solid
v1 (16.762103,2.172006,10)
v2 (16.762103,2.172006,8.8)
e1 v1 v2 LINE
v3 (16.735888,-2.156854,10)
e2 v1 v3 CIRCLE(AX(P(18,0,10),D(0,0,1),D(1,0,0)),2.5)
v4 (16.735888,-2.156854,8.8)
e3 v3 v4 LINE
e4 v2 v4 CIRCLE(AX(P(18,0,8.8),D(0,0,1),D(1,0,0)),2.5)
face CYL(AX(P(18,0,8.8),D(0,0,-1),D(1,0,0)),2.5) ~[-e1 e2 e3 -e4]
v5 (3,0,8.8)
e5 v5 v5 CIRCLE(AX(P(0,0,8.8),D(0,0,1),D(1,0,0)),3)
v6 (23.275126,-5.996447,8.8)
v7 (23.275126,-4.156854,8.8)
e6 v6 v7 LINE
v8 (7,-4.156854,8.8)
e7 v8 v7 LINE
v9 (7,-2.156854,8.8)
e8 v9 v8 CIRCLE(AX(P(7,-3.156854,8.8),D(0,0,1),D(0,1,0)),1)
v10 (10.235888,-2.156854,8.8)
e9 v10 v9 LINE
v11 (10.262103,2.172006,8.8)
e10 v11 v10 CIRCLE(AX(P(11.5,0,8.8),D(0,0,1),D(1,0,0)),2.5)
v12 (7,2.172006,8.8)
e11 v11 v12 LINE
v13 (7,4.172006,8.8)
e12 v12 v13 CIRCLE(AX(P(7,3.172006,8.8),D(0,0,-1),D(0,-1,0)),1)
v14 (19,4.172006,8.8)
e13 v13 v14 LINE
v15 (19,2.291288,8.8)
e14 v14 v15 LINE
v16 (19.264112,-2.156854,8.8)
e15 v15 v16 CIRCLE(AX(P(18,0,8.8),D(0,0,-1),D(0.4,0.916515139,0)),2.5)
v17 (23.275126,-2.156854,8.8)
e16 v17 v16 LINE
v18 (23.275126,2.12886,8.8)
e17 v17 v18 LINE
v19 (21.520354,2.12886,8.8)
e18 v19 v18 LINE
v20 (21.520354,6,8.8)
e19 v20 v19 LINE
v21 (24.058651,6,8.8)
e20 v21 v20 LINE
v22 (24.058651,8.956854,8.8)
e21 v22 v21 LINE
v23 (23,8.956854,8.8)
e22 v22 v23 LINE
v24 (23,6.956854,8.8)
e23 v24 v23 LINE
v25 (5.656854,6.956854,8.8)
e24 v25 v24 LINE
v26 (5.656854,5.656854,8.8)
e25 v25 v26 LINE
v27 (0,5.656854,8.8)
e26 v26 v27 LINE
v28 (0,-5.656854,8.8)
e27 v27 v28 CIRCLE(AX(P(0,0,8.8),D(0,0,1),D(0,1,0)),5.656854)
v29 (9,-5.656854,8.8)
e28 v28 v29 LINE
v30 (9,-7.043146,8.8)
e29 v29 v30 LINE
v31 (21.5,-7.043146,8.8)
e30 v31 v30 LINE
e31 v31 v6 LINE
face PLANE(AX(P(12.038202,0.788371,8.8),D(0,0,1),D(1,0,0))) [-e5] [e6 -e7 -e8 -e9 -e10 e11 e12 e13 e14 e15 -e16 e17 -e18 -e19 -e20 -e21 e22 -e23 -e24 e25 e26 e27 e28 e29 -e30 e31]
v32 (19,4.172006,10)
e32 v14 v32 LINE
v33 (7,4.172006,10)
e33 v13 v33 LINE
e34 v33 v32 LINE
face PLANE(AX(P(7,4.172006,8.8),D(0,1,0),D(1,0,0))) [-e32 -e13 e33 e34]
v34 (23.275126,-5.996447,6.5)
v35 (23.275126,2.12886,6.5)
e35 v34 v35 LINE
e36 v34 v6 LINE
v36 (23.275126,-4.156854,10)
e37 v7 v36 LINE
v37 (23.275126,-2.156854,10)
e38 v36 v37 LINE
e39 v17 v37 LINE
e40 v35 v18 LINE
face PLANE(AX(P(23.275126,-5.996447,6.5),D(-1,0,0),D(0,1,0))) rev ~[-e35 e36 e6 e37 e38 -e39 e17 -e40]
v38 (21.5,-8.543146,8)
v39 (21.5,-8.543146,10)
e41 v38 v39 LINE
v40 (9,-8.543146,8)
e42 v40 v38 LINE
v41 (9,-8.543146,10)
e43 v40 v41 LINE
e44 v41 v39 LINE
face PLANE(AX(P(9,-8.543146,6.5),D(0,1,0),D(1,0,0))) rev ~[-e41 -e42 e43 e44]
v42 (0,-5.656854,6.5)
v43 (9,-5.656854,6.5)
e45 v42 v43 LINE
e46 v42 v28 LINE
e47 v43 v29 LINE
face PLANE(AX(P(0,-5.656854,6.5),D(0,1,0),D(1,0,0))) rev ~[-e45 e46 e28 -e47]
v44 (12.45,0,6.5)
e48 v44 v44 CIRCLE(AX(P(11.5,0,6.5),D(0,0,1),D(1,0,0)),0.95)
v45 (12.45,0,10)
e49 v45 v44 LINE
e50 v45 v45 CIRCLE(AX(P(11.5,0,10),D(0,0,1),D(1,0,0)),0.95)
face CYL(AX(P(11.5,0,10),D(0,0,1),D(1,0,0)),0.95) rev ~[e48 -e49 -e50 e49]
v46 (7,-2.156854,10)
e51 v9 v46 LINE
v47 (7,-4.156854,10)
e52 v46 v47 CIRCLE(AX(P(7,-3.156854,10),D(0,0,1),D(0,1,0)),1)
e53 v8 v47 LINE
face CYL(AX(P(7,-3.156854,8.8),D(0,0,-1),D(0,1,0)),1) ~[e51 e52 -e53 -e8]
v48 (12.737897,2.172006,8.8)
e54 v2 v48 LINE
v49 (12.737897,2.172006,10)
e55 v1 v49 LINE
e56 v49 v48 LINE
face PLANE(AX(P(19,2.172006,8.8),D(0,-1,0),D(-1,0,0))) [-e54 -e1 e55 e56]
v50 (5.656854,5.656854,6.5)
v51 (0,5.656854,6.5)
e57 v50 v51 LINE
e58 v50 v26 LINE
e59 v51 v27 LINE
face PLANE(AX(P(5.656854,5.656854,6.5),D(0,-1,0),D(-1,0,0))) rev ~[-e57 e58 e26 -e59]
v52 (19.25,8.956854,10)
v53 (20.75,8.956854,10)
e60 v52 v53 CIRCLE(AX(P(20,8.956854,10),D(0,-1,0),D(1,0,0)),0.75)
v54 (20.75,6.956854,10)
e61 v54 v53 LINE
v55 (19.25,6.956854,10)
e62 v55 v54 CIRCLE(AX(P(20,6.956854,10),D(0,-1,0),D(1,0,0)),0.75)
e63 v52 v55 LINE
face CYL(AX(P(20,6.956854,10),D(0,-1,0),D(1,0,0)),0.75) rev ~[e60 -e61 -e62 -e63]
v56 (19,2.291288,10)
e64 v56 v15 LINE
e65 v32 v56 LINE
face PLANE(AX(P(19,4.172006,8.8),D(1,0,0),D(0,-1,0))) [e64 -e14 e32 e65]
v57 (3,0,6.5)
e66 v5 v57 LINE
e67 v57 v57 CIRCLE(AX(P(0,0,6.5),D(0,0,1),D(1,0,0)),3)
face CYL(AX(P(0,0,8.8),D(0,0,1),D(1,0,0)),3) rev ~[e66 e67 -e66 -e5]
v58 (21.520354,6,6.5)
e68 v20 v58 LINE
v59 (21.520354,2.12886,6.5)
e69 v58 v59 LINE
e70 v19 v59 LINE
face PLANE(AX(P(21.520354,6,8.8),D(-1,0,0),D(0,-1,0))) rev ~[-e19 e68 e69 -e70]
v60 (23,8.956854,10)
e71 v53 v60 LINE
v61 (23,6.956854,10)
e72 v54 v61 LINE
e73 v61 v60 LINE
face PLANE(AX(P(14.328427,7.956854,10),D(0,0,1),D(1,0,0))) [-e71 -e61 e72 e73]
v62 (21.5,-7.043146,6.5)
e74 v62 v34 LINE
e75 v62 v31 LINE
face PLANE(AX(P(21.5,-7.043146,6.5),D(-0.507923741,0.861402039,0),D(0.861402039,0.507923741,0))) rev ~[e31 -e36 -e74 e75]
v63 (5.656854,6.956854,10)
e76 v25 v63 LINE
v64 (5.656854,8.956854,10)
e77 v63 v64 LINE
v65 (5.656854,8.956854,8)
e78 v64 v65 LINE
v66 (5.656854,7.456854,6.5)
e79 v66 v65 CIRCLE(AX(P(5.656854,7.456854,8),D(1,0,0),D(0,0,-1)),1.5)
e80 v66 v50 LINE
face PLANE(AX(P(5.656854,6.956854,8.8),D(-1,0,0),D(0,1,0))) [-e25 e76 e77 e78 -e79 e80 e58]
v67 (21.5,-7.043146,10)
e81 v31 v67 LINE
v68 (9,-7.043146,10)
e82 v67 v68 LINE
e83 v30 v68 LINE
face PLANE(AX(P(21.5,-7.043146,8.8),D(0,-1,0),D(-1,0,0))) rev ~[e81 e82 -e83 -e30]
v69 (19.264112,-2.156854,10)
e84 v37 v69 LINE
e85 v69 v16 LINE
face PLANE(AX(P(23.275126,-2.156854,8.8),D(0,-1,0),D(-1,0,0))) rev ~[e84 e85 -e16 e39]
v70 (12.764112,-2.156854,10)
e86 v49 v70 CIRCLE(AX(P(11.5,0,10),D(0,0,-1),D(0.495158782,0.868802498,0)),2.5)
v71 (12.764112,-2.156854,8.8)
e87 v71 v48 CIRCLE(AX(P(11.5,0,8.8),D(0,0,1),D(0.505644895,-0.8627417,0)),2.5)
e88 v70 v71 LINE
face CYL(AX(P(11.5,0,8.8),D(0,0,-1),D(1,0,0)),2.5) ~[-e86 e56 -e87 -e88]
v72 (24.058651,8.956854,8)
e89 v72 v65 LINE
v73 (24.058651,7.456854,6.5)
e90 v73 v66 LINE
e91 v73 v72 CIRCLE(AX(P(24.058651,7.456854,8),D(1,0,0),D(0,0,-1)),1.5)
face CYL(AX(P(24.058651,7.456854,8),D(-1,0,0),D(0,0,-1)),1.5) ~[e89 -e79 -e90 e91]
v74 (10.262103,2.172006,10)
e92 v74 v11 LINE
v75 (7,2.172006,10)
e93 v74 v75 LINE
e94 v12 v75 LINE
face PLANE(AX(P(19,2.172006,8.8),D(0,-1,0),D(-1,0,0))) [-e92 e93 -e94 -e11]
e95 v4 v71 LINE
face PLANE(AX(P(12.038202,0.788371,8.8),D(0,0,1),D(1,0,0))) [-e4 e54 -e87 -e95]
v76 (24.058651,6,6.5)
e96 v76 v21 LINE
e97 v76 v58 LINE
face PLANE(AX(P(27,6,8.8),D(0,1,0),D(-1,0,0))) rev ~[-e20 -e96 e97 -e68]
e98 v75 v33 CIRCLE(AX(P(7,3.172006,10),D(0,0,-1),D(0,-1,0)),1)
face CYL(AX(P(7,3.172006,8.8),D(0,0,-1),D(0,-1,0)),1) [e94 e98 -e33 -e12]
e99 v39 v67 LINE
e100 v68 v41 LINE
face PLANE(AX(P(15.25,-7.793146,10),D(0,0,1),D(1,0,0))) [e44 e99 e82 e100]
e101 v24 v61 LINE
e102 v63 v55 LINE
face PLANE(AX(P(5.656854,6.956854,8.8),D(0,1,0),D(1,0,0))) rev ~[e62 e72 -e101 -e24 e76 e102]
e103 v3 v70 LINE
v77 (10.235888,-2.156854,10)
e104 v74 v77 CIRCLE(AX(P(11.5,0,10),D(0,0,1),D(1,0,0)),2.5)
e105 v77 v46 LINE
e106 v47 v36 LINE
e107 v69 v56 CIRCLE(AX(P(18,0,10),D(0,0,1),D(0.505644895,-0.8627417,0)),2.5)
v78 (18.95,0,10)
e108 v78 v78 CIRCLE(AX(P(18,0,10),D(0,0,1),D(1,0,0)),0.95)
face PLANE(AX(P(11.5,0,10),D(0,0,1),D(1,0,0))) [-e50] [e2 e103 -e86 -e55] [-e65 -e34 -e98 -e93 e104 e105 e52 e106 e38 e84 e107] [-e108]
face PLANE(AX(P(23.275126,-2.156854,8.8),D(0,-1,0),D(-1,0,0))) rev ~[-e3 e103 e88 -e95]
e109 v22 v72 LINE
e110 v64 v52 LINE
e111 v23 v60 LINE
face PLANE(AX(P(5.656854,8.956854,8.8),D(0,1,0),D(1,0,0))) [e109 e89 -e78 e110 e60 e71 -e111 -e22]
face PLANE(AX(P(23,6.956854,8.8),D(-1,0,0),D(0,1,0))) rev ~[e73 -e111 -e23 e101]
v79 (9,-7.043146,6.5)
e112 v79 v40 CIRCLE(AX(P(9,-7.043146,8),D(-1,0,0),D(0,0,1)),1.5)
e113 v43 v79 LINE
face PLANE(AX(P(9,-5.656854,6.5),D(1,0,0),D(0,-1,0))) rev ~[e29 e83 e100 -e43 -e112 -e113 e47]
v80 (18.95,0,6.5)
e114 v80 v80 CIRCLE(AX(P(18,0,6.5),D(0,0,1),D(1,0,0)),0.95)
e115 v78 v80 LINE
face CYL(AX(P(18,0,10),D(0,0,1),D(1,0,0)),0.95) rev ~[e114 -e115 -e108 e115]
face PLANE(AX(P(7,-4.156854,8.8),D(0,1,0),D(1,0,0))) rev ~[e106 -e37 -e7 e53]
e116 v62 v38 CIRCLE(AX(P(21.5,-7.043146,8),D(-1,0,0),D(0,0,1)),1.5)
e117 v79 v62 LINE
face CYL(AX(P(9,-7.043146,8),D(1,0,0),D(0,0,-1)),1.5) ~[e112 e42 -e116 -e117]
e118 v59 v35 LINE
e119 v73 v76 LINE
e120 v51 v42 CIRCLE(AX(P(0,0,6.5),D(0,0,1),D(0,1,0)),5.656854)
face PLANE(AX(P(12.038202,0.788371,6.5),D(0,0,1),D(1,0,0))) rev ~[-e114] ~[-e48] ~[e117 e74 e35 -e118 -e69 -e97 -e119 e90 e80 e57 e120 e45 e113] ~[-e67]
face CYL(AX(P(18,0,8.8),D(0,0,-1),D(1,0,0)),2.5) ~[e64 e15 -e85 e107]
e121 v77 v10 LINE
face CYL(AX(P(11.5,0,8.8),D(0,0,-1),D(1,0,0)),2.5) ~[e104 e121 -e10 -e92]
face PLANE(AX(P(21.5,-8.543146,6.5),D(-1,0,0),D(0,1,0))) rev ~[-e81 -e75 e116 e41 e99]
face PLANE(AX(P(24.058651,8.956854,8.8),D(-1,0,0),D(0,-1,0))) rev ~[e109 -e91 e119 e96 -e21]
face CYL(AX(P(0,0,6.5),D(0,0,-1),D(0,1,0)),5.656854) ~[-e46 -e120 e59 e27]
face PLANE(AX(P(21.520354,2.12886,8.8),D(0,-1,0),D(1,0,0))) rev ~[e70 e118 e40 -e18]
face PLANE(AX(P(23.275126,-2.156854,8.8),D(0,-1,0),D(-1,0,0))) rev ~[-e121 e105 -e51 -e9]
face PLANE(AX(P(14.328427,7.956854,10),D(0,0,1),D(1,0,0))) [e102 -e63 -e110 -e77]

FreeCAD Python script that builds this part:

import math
import FreeCAD as App
import Part
import Sketcher


def edges_at(feature, points):
    """Names of the edges that pass closest to the given points."""
    edges = feature.Shape.Edges
    near = lambda p: min(range(len(edges)), key=lambda i: edges[i].distToShape(Part.Vertex(*p))[0])
    return sorted({f"Edge{near(p) + 1}" for p in points})


def add_polygon(sketch, points):
    """Adds a closed chain of lines whose ends are joined by coincident constraints."""
    first, n = sketch.GeometryCount, len(points)
    for a, b in zip(points, points[1:] + points[:1]):
        sketch.addGeometry(Part.LineSegment(App.Vector(*a, 0), App.Vector(*b, 0)), False)
    for i in range(n):
        sketch.addConstraint(Sketcher.Constraint("Coincident", first + i, 2, first + (i + 1) % n, 1))

doc = App.newDocument("Part")
body = doc.addObject("PartDesign::Body", "Body")

# Sketch on XY plane
sketch1 = doc.addObject("Sketcher::SketchObject", "Sketch")
body.addObject(sketch1)
sketch1.AttachmentSupport = (doc.XY_Plane, [""])
sketch1.MapMode = "FlatFace"
sketch1.addGeometry([
    Part.LineSegment(App.Vector(8, 0, 0), App.Vector(9, -2.543146, 0)),  # 0
    Part.LineSegment(App.Vector(9, -2.543146, 0), App.Vector(9, -7.043146, 0)),  # 1
    Part.LineSegment(App.Vector(9, -7.043146, 0), App.Vector(21.5, -7.043146, 0)),  # 2
    Part.LineSegment(App.Vector(21.5, -7.043146, 0), App.Vector(25.050253, -4.949747, 0)),  # 3
    Part.ArcOfCircle(Part.Circle(App.Vector(30, 0, 0), App.Vector(0, 0, 1), 7), math.radians(-135), math.radians(90)),  # 4
    Part.LineSegment(App.Vector(30, 7, 0), App.Vector(27, 7.456854, 0)),  # 5
    Part.LineSegment(App.Vector(27, 7.456854, 0), App.Vector(5.656854, 7.456854, 0)),  # 6
    Part.LineSegment(App.Vector(5.656854, 7.456854, 0), App.Vector(5.656854, 5.656854, 0)),  # 7
    Part.ArcOfCircle(Part.Circle(App.Vector(0, 0, 0), App.Vector(0, 0, 1), 8), math.radians(0), math.radians(45)),  # 8
], False)
sketch1.addConstraint([
    Sketcher.Constraint("Coincident", 0, 2, 1, 1),
    Sketcher.Constraint("Coincident", 1, 2, 2, 1),
    Sketcher.Constraint("Coincident", 2, 2, 3, 1),
    Sketcher.Constraint("Coincident", 3, 2, 4, 1),
    Sketcher.Constraint("Coincident", 4, 2, 5, 1),
    Sketcher.Constraint("Coincident", 5, 2, 6, 1),
    Sketcher.Constraint("Coincident", 6, 2, 7, 1),
    Sketcher.Constraint("Coincident", 7, 2, 8, 2),
    Sketcher.Constraint("Coincident", 8, 1, 0, 1),
    Sketcher.Constraint("Vertical", 1),
    Sketcher.Constraint("Horizontal", 2),
    Sketcher.Constraint("Horizontal", 6),
    Sketcher.Constraint("Vertical", 7),
    Sketcher.Constraint("Coincident", 8, 3, -1, 1),
    Sketcher.Constraint("PointOnObject", 4, 3, -1),
    Sketcher.Constraint("PointOnObject", 8, 1, -1),
    Sketcher.Constraint("Radius", 4, 7.0),
    Sketcher.Constraint("Radius", 8, 8.0),
    Sketcher.Constraint("DistanceX", 2, 1, 2, 2, 12.5),
    Sketcher.Constraint("DistanceY", 1, 2, 1, 1, 4.5),
    Sketcher.Constraint("DistanceY", 7, 2, 7, 1, 1.8),
    Sketcher.Constraint("DistanceX", -1, 1, 4, 3, 30.0),
    Sketcher.Constraint("DistanceX", -1, 1, 0, 2, 9.0),
    Sketcher.Constraint("DistanceX", -1, 1, 4, 2, 30.0),
    Sketcher.Constraint("DistanceX", -1, 1, 5, 2, 27.0),
    Sketcher.Constraint("DistanceY", 0, 2, 5, 2, 10.0),
    Sketcher.Constraint("DistanceY", 2, 2, 3, 2, 2.093398),
    Sketcher.Constraint("Distance", 0, 2.732689),
])
pad1 = doc.addObject("PartDesign::Pad", "Pad")
body.addObject(pad1)
pad1.Profile = sketch1
pad1.Length = 2

# Sketch on XY plane
sketch2 = doc.addObject("Sketcher::SketchObject", "Sketch001")
body.addObject(sketch2)
sketch2.AttachmentSupport = (doc.XY_Plane, [""])
sketch2.MapMode = "FlatFace"
sketch2.AttachmentOffset = App.Placement(App.Vector(0, 0, 2), App.Rotation())
sketch2.addGeometry([
    Part.LineSegment(App.Vector(27, 7.456854, 0), App.Vector(5.656854, 7.456854, 0)),  # 0
    Part.LineSegment(App.Vector(5.656854, 7.456854, 0), App.Vector(5.656854, 5.656854, 0)),  # 1
    Part.ArcOfCircle(Part.Circle(App.Vector(0, 0, 0), App.Vector(0, 0, 1), 8), math.radians(0), math.radians(45)),  # 2
    Part.LineSegment(App.Vector(8, 0, 0), App.Vector(9, -2.543146, 0)),  # 3
    Part.LineSegment(App.Vector(9, -2.543146, 0), App.Vector(9, -7.043146, 0)),  # 4
    Part.LineSegment(App.Vector(9, -7.043146, 0), App.Vector(21.5, -7.043146, 0)),  # 5
    Part.LineSegment(App.Vector(21.5, -7.043146, 0), App.Vector(23.275126, -5.996447, 0)),  # 6
    Part.LineSegment(App.Vector(23.275126, -5.996447, 0), App.Vector(23.275126, 2.12886, 0)),  # 7
    Part.LineSegment(App.Vector(23.275126, 2.12886, 0), App.Vector(27, 2.12886, 0)),  # 8
    Part.LineSegment(App.Vector(27, 2.12886, 0), App.Vector(27, 7.456854, 0)),  # 9
], False)
sketch2.addConstraint([
    Sketcher.Constraint("Coincident", 0, 2, 1, 1),
    Sketcher.Constraint("Coincident", 1, 2, 2, 2),
    Sketcher.Constraint("Coincident", 2, 1, 3, 1),
    Sketcher.Constraint("Coincident", 3, 2, 4, 1),
    Sketcher.Constraint("Coincident", 4, 2, 5, 1),
    Sketcher.Constraint("Coincident", 5, 2, 6, 1),
    Sketcher.Constraint("Coincident", 6, 2, 7, 1),
    Sketcher.Constraint("Coincident", 7, 2, 8, 1),
    Sketcher.Constraint("Coincident", 8, 2, 9, 1),
    Sketcher.Constraint("Coincident", 9, 2, 0, 1),
    Sketcher.Constraint("Horizontal", 0),
    Sketcher.Constraint("Vertical", 1),
    Sketcher.Constraint("Vertical", 4),
    Sketcher.Constraint("Horizontal", 5),
    Sketcher.Constraint("Vertical", 7),
    Sketcher.Constraint("Horizontal", 8),
    Sketcher.Constraint("Vertical", 9),
    Sketcher.Constraint("Coincident", 2, 3, -1, 1),
    Sketcher.Constraint("PointOnObject", 2, 1, -1),
    Sketcher.Constraint("Radius", 2, 8.0),
    Sketcher.Constraint("DistanceX", 5, 1, 5, 2, 12.5),
    Sketcher.Constraint("DistanceY", 1, 2, 1, 1, 1.8),
    Sketcher.Constraint("DistanceY", 4, 2, 4, 1, 4.5),
    Sketcher.Constraint("DistanceX", -1, 1, 3, 2, 9.0),
    Sketcher.Constraint("DistanceX", -1, 1, 8, 2, 27.0),
    Sketcher.Constraint("DistanceY", 3, 2, 0, 2, 10.0),
    Sketcher.Constraint("DistanceY", 5, 2, 6, 2, 1.046699),
    Sketcher.Constraint("Distance", 3, 2.732689),
    Sketcher.Constraint("Distance", 6, 2.060741),
    Sketcher.Constraint("DistanceY", 7, 1, 7, 2, 8.125307),
])
pad2 = doc.addObject("PartDesign::Pad", "Pad001")
body.addObject(pad2)
pad2.Profile = sketch2
pad2.Length = 4.5

# Sketch on XY plane
sketch3 = doc.addObject("Sketcher::SketchObject", "Sketch002")
body.addObject(sketch3)
sketch3.AttachmentSupport = (doc.XY_Plane, [""])
sketch3.MapMode = "FlatFace"
sketch3.AttachmentOffset = App.Placement(App.Vector(0, 0, 2), App.Rotation())
add_polygon(sketch3, [(2.530052, 5.3), (2.530052, 4), (27, 4), (27, 5.3)])  # lines 0-3
sketch3.addConstraint([
    Sketcher.Constraint("Vertical", 0),
    Sketcher.Constraint("Horizontal", 1),
    Sketcher.Constraint("Vertical", 2),
    Sketcher.Constraint("Horizontal", 3),
    Sketcher.Constraint("DistanceY", 0, 2, 0, 1, 1.3),
    Sketcher.Constraint("DistanceY", -1, 1, 0, 2, 4.0),
    Sketcher.Constraint("DistanceX", -1, 1, 1, 2, 27.0),
    Sketcher.Constraint("DistanceX", 1, 1, 1, 2, 24.469948),
])
pocket1 = doc.addObject("PartDesign::Pocket", "Pocket")
body.addObject(pocket1)
pocket1.Profile = sketch3
pocket1.Length = 4.5
pocket1.Reversed = True
body2 = doc.addObject("PartDesign::Body", "Body001")

# Sketch on XY plane
sketch4 = doc.addObject("Sketcher::SketchObject", "Sketch003")
body2.addObject(sketch4)
sketch4.AttachmentSupport = (doc.getObject("XY_Plane001"), [""])
sketch4.MapMode = "FlatFace"
sketch4.AttachmentOffset = App.Placement(App.Vector(0, 0, 6.5), App.Rotation())
sketch4.addGeometry([
    Part.ArcOfCircle(Part.Circle(App.Vector(0, 0, 0), App.Vector(0, 0, 1), 5.656854), math.radians(90), math.radians(270)),  # 0
    Part.LineSegment(App.Vector(0, -5.656854, 0), App.Vector(9, -5.656854, 0)),  # 1
    Part.LineSegment(App.Vector(9, -5.656854, 0), App.Vector(9, -8.543146, 0)),  # 2
    Part.LineSegment(App.Vector(9, -8.543146, 0), App.Vector(21.5, -8.543146, 0)),  # 3
    Part.LineSegment(App.Vector(21.5, -8.543146, 0), App.Vector(21.5, -7.043146, 0)),  # 4
    Part.LineSegment(App.Vector(21.5, -7.043146, 0), App.Vector(23.275126, -5.996447, 0)),  # 5
    Part.LineSegment(App.Vector(23.275126, -5.996447, 0), App.Vector(23.275126, 2.12886, 0)),  # 6
    Part.LineSegment(App.Vector(23.275126, 2.12886, 0), App.Vector(27, 2.12886, 0)),  # 7
    Part.LineSegment(App.Vector(27, 2.12886, 0), App.Vector(27, 8.956854, 0)),  # 8
    Part.LineSegment(App.Vector(27, 8.956854, 0), App.Vector(5.656854, 8.956854, 0)),  # 9
    Part.LineSegment(App.Vector(5.656854, 8.956854, 0), App.Vector(5.656854, 5.656854, 0)),  # 10
    Part.LineSegment(App.Vector(5.656854, 5.656854, 0), App.Vector(0, 5.656854, 0)),  # 11
], False)
sketch4.addConstraint([
    Sketcher.Constraint("Tangent", 0, 2, 1, 1),
    Sketcher.Constraint("Coincident", 1, 2, 2, 1),
    Sketcher.Constraint("Coincident", 2, 2, 3, 1),
    Sketcher.Constraint("Coincident", 3, 2, 4, 1),
    Sketcher.Constraint("Coincident", 4, 2, 5, 1),
    Sketcher.Constraint("Coincident", 5, 2, 6, 1),
    Sketcher.Constraint("Coincident", 6, 2, 7, 1),
    Sketcher.Constraint("Coincident", 7, 2, 8, 1),
    Sketcher.Constraint("Coincident", 8, 2, 9, 1),
    Sketcher.Constraint("Coincident", 9, 2, 10, 1),
    Sketcher.Constraint("Coincident", 10, 2, 11, 1),
    Sketcher.Constraint("Tangent", 11, 2, 0, 1),
    Sketcher.Constraint("Horizontal", 1),
    Sketcher.Constraint("Vertical", 2),
    Sketcher.Constraint("Horizontal", 3),
    Sketcher.Constraint("Vertical", 4),
    Sketcher.Constraint("Vertical", 6),
    Sketcher.Constraint("Horizontal", 7),
    Sketcher.Constraint("Vertical", 8),
    Sketcher.Constraint("Horizontal", 9),
    Sketcher.Constraint("Vertical", 10),
    Sketcher.Constraint("Horizontal", 11),
    Sketcher.Constraint("Coincident", 0, 3, -1, 1),
    Sketcher.Constraint("DistanceX", 1, 1, 1, 2, 9.0),
    Sketcher.Constraint("DistanceX", 3, 1, 3, 2, 12.5),
    Sketcher.Constraint("DistanceY", 4, 1, 4, 2, 1.5),
    Sketcher.Constraint("DistanceY", 10, 2, 10, 1, 3.3),
    Sketcher.Constraint("DistanceX", -1, 1, 7, 2, 27.0),
    Sketcher.Constraint("DistanceY", 4, 2, 8, 2, 16.0),
    Sketcher.Constraint("Radius", 0, 5.656854),
    Sketcher.Constraint("DistanceY", 4, 2, 5, 2, 1.046699),
    Sketcher.Constraint("Distance", 5, 2.060741),
    Sketcher.Constraint("DistanceX", 9, 2, 9, 1, 21.343146),
    Sketcher.Constraint("DistanceY", 6, 1, 6, 2, 8.125307),
])
pad3 = doc.addObject("PartDesign::Pad", "Pad002")
body2.addObject(pad3)
pad3.Profile = sketch4
pad3.Length = 2.3

# Sketch on XY plane
sketch5 = doc.addObject("Sketcher::SketchObject", "Sketch004")
body2.addObject(sketch5)
sketch5.AttachmentSupport = (doc.getObject("XY_Plane001"), [""])
sketch5.MapMode = "FlatFace"
sketch5.AttachmentOffset = App.Placement(App.Vector(0, 0, 8.8), App.Rotation())
sketch5.addGeometry(Part.Circle(App.Vector(0, 0, 0), App.Vector(0, 0, 1), 3), False)
sketch5.addConstraint([
    Sketcher.Constraint("Coincident", 0, 3, -1, 1),
    Sketcher.Constraint("Diameter", 0, 6.0),
])
pocket2 = doc.addObject("PartDesign::Pocket", "Pocket001")
body2.addObject(pocket2)
pocket2.Profile = sketch5
pocket2.Length = 2.3

# Sketch on XY plane
sketch6 = doc.addObject("Sketcher::SketchObject", "Sketch005")
body2.addObject(sketch6)
sketch6.AttachmentSupport = (doc.getObject("XY_Plane001"), [""])
sketch6.MapMode = "FlatFace"
sketch6.AttachmentOffset = App.Placement(App.Vector(0, 0, 8.8), App.Rotation())
add_polygon(sketch6, [(5.656854, 8.956854), (5.656854, 6.956854), (23, 6.956854), (23, 8.956854)])  # lines 0-3
add_polygon(sketch6, [(9, -7.043146), (9, -8.543146), (21.5, -8.543146), (21.5, -7.043146)])  # lines 4-7
sketch6.addGeometry(Part.LineSegment(App.Vector(7, -4.156854, 0), App.Vector(23.275126, -4.156854, 0)), False)  # 8
sketch6.addGeometry(Part.LineSegment(App.Vector(23.275126, -4.156854, 0), App.Vector(23.275126, -2.156854, 0)), False)  # 9
sketch6.addGeometry(Part.LineSegment(App.Vector(23.275126, -2.156854, 0), App.Vector(7, -2.156854, 0)), False)  # 10
sketch6.addGeometry(Part.ArcOfCircle(Part.Circle(App.Vector(7, -3.156854, 0), App.Vector(0, 0, 1), 1), math.radians(90), math.radians(270)), False)  # 11
sketch6.addGeometry(Part.LineSegment(App.Vector(7, 2.172006, 0), App.Vector(19, 2.172006, 0)), False)  # 12
sketch6.addGeometry(Part.LineSegment(App.Vector(19, 2.172006, 0), App.Vector(19, 4.172006, 0)), False)  # 13
sketch6.addGeometry(Part.LineSegment(App.Vector(19, 4.172006, 0), App.Vector(7, 4.172006, 0)), False)  # 14
sketch6.addGeometry(Part.ArcOfCircle(Part.Circle(App.Vector(7, 3.172006, 0), App.Vector(0, 0, 1), 1), math.radians(90), math.radians(270)), False)  # 15
sketch6.addConstraint([
    Sketcher.Constraint("Coincident", 8, 2, 9, 1),
    Sketcher.Constraint("Coincident", 9, 2, 10, 1),
    Sketcher.Constraint("Tangent", 10, 2, 11, 1),
    Sketcher.Constraint("Tangent", 11, 2, 8, 1),
    Sketcher.Constraint("Coincident", 12, 2, 13, 1),
    Sketcher.Constraint("Coincident", 13, 2, 14, 1),
    Sketcher.Constraint("Tangent", 14, 2, 15, 1),
    Sketcher.Constraint("Tangent", 15, 2, 12, 1),
    Sketcher.Constraint("Vertical", 0),
    Sketcher.Constraint("Horizontal", 1),
    Sketcher.Constraint("Vertical", 2),
    Sketcher.Constraint("Horizontal", 3),
    Sketcher.Constraint("Vertical", 4),
    Sketcher.Constraint("Horizontal", 5),
    Sketcher.Constraint("Vertical", 6),
    Sketcher.Constraint("Horizontal", 7),
    Sketcher.Constraint("Horizontal", 8),
    Sketcher.Constraint("Vertical", 9),
    Sketcher.Constraint("Horizontal", 10),
    Sketcher.Constraint("Horizontal", 12),
    Sketcher.Constraint("Vertical", 13),
    Sketcher.Constraint("Horizontal", 14),
    Sketcher.Constraint("Equal", 11, 15),
    Sketcher.Constraint("Vertical", 11, 3, 15, 3),
    Sketcher.Constraint("Equal", 2, 9),
    Sketcher.Constraint("Radius", 11, 1.0),
    Sketcher.Constraint("DistanceX", 12, 1, 12, 2, 12.0),
    Sketcher.Constraint("DistanceX", 5, 1, 5, 2, 12.5),
    Sketcher.Constraint("DistanceY", 4, 2, 4, 1, 1.5),
    Sketcher.Constraint("DistanceX", -1, 1, 11, 3, 7.0),
    Sketcher.Constraint("DistanceX", -1, 1, 1, 2, 23.0),
    Sketcher.Constraint("DistanceX", -1, 1, 4, 2, 9.0),
    Sketcher.Constraint("DistanceY", 6, 2, 1, 2, 14.0),
    Sketcher.Constraint("DistanceX", 1, 1, 1, 2, 17.343146),
    Sketcher.Constraint("DistanceX", 8, 1, 8, 2, 16.275126),
    Sketcher.Constraint("DistanceY", 11, 3, 15, 3, 6.32886),
    Sketcher.Constraint("DistanceY", 15, 3, 0, 2, 3.784848),
    Sketcher.Constraint("DistanceY", 11, 3, -1, 1, 3.156854),
])
pad4 = doc.addObject("PartDesign::Pad", "Pad003")
body2.addObject(pad4)
pad4.Profile = sketch6
pad4.Length = 1.2
body3 = doc.addObject("PartDesign::Body", "Body002")

# Sketch on XY plane
sketch7 = doc.addObject("Sketcher::SketchObject", "Sketch006")
body3.addObject(sketch7)
sketch7.AttachmentSupport = (doc.getObject("XY_Plane002"), [""])
sketch7.MapMode = "FlatFace"
sketch7.AttachmentOffset = App.Placement(App.Vector(0, 0, 8.8), App.Rotation())
add_polygon(sketch7, [(27, 2.12886), (27, 6), (21.520354, 6), (21.520354, 2.12886)])  # lines 0-3
sketch7.addConstraint([
    Sketcher.Constraint("Vertical", 0),
    Sketcher.Constraint("Horizontal", 1),
    Sketcher.Constraint("Vertical", 2),
    Sketcher.Constraint("Horizontal", 3),
    Sketcher.Constraint("DistanceX", -1, 1, 0, 2, 27.0),
    Sketcher.Constraint("DistanceY", -1, 1, 0, 2, 6.0),
    Sketcher.Constraint("DistanceY", 0, 1, 0, 2, 3.87114),
    Sketcher.Constraint("DistanceX", 1, 2, 1, 1, 5.479646),
])
pad5 = doc.addObject("PartDesign::Pad", "Pad004")
body3.addObject(pad5)
pad5.Profile = sketch7
pad5.Length = 2.4
pad5.Reversed = True
doc.recompute()

body4 = doc.addObject("PartDesign::Body", "Body003")
body4.BaseFeature = body3
boolean = doc.addObject("PartDesign::Boolean", "Boolean")
body.addObject(boolean)
boolean.Type = "Cut"
boolean.addObjects([body4])
doc.recompute()

# Sketch on XY plane
sketch8 = doc.addObject("Sketcher::SketchObject", "Sketch007")
body.addObject(sketch8)
sketch8.AttachmentSupport = (doc.XY_Plane, [""])
sketch8.MapMode = "FlatFace"
sketch8.AttachmentOffset = App.Placement(App.Vector(0, 0, 6.4), App.Rotation())
add_polygon(sketch8, [(27, 2.12886), (27, 4), (23.3, 4), (23.3, 2.12886)])  # lines 0-3
sketch8.addConstraint([
    Sketcher.Constraint("Vertical", 0),
    Sketcher.Constraint("Horizontal", 1),
    Sketcher.Constraint("Vertical", 2),
    Sketcher.Constraint("Horizontal", 3),
    Sketcher.Constraint("DistanceX", 1, 2, 1, 1, 3.7),
    Sketcher.Constraint("DistanceX", -1, 1, 0, 2, 27.0),
    Sketcher.Constraint("DistanceY", -1, 1, 0, 2, 4.0),
    Sketcher.Constraint("DistanceY", 0, 1, 0, 2, 1.87114),
])
pocket3 = doc.addObject("PartDesign::Pocket", "Pocket002")
body.addObject(pocket3)
pocket3.Profile = sketch8
pocket3.Length = 4.4

# Sketch on XY plane
sketch9 = doc.addObject("Sketcher::SketchObject", "Sketch008")
body.addObject(sketch9)
sketch9.AttachmentSupport = (doc.XY_Plane, [""])
sketch9.MapMode = "FlatFace"
sketch9.AttachmentOffset = App.Placement(App.Vector(0, 0, 2), App.Rotation())
sketch9.addGeometry(Part.Circle(App.Vector(30, 0, 0), App.Vector(0, 0, 1), 3.9), False)
sketch9.addConstraint([
    Sketcher.Constraint("PointOnObject", 0, 3, -1),
    Sketcher.Constraint("Diameter", 0, 7.8),
    Sketcher.Constraint("DistanceX", -1, 1, 0, 3, 30.0),
])
pad6 = doc.addObject("PartDesign::Pad", "Pad005")
body.addObject(pad6)
pad6.Profile = sketch9
pad6.Length = 4.4

# Sketch on XY plane
sketch10 = doc.addObject("Sketcher::SketchObject", "Sketch009")
body.addObject(sketch10)
sketch10.AttachmentSupport = (doc.XY_Plane, [""])
sketch10.MapMode = "FlatFace"
sketch10.AttachmentOffset = App.Placement(App.Vector(0, 0, 6.4), App.Rotation())
sketch10.addGeometry([
    Part.LineSegment(App.Vector(29, 0.979796, 0), App.Vector(29, -0.979796, 0)),
    Part.ArcOfCircle(Part.Circle(App.Vector(30, 0, 0), App.Vector(0, 0, 1), 1.4), math.radians(-135.584691), math.radians(135.584691)),
], False)
sketch10.addConstraint([
    Sketcher.Constraint("Coincident", 0, 1, 1, 2),
    Sketcher.Constraint("Coincident", 1, 1, 0, 2),
    Sketcher.Constraint("Vertical", 0),
    Sketcher.Constraint("PointOnObject", 1, 3, -1),
    Sketcher.Constraint("Radius", 1, 1.4),
    Sketcher.Constraint("DistanceX", -1, 1, 1, 3, 30.0),
    Sketcher.Constraint("DistanceX", -1, 1, 0, 1, 29.0),
])
pocket4 = doc.addObject("PartDesign::Pocket", "Pocket003")
body.addObject(pocket4)
pocket4.Profile = sketch10
pocket4.Type = "ThroughAll"
doc.recompute()

boolean2 = doc.addObject("PartDesign::Boolean", "Boolean001")
body2.addObject(boolean2)
boolean2.Type = "Cut"
boolean2.addObjects([body3])

# Sketch on XY plane
sketch11 = doc.addObject("Sketcher::SketchObject", "Sketch010")
body2.addObject(sketch11)
sketch11.AttachmentSupport = (doc.getObject("XY_Plane001"), [""])
sketch11.MapMode = "FlatFace"
sketch11.AttachmentOffset = App.Placement(App.Vector(0, 0, 8.8), App.Rotation())
sketch11.addGeometry([
    Part.Circle(App.Vector(11.5, 0, 0), App.Vector(0, 0, 1), 2.5),
    Part.Circle(App.Vector(18, 0, 0), App.Vector(0, 0, 1), 2.5),
], False)
sketch11.addConstraint([
    Sketcher.Constraint("Equal", 0, 1),
    Sketcher.Constraint("PointOnObject", 0, 3, -1),
    Sketcher.Constraint("PointOnObject", 1, 3, -1),
    Sketcher.Constraint("Diameter", 0, 5.0),
    Sketcher.Constraint("DistanceX", -1, 1, 1, 3, 18.0),
    Sketcher.Constraint("DistanceX", -1, 1, 0, 3, 11.5),
])
pad7 = doc.addObject("PartDesign::Pad", "Pad006")
body2.addObject(pad7)
pad7.Profile = sketch11
pad7.Length = 1.2
body5 = doc.addObject("PartDesign::Body", "Body004")
body5.AllowCompound = True

# Sketch on XY plane
sketch12 = doc.addObject("Sketcher::SketchObject", "Sketch011")
body5.addObject(sketch12)
sketch12.AttachmentSupport = (doc.getObject("XY_Plane004"), [""])
sketch12.MapMode = "FlatFace"
sketch12.AttachmentOffset = App.Placement(App.Vector(0, 0, 10), App.Rotation())
sketch12.addGeometry([
    Part.Circle(App.Vector(11.5, 0, 0), App.Vector(0, 0, 1), 0.95),
    Part.Circle(App.Vector(18, 0, 0), App.Vector(0, 0, 1), 0.95),
], False)
sketch12.addConstraint([
    Sketcher.Constraint("Equal", 0, 1),
    Sketcher.Constraint("PointOnObject", 0, 3, -1),
    Sketcher.Constraint("PointOnObject", 1, 3, -1),
    Sketcher.Constraint("Diameter", 0, 1.9),
    Sketcher.Constraint("DistanceX", -1, 1, 1, 3, 18.0),
    Sketcher.Constraint("DistanceX", -1, 1, 0, 3, 11.5),
])
pad8 = doc.addObject("PartDesign::Pad", "Pad007")
body5.addObject(pad8)
pad8.Profile = sketch12
pad8.Length = 40.360199
pad8.Reversed = True
doc.recompute()

body6 = doc.addObject("PartDesign::Body", "Body005")
body6.BaseFeature = body5
boolean3 = doc.addObject("PartDesign::Boolean", "Boolean002")
body.addObject(boolean3)
boolean3.Type = "Cut"
boolean3.addObjects([body6])
doc.recompute()

# Sketch on XY plane
sketch13 = doc.addObject("Sketcher::SketchObject", "Sketch012")
body.addObject(sketch13)
sketch13.AttachmentSupport = (doc.XY_Plane, [""])
sketch13.MapMode = "FlatFace"
sketch13.addGeometry([
    Part.Circle(App.Vector(11.5, 0, 0), App.Vector(0, 0, 1), 2),
    Part.Circle(App.Vector(18, 0, 0), App.Vector(0, 0, 1), 2),
], False)
sketch13.addConstraint([
    Sketcher.Constraint("Equal", 0, 1),
    Sketcher.Constraint("PointOnObject", 0, 3, -1),
    Sketcher.Constraint("PointOnObject", 1, 3, -1),
    Sketcher.Constraint("Diameter", 0, 4.0),
    Sketcher.Constraint("DistanceX", -1, 1, 1, 3, 18.0),
    Sketcher.Constraint("DistanceX", -1, 1, 0, 3, 11.5),
])
pocket5 = doc.addObject("PartDesign::Pocket", "Pocket004")
body.addObject(pocket5)
pocket5.Profile = sketch13
pocket5.Length = 4.5
pocket5.Reversed = True
doc.recompute()

boolean4 = doc.addObject("PartDesign::Boolean", "Boolean003")
body2.addObject(boolean4)
boolean4.Type = "Cut"
boolean4.addObjects([body5])

# Sketch on XZ plane
sketch14 = doc.addObject("Sketcher::SketchObject", "Sketch013")
body2.addObject(sketch14)
sketch14.AttachmentSupport = (doc.getObject("XZ_Plane001"), [""])
sketch14.MapMode = "FlatFace"
sketch14.AttachmentOffset = App.Placement(App.Vector(0, 0, -6.956854), App.Rotation())
sketch14.addGeometry(Part.Circle(App.Vector(20, 10, 0), App.Vector(0, 0, 1), 0.75), False)
sketch14.addConstraint([
    Sketcher.Constraint("Diameter", 0, 1.5),
    Sketcher.Constraint("DistanceX", -1, 1, 0, 3, 20.0),
    Sketcher.Constraint("DistanceY", -1, 1, 0, 3, 10.0),
])
pocket6 = doc.addObject("PartDesign::Pocket", "Pocket005")
body2.addObject(pocket6)
pocket6.Profile = sketch14
pocket6.Length = 3
body7 = doc.addObject("PartDesign::Body", "Body006")

# Sketch on XY plane
sketch15 = doc.addObject("Sketcher::SketchObject", "Sketch014")
body7.addObject(sketch15)
sketch15.AttachmentSupport = (doc.getObject("XY_Plane006"), [""])
sketch15.MapMode = "FlatFace"
sketch15.AttachmentOffset = App.Placement(App.Vector(0, 0, 8.8), App.Rotation())
add_polygon(sketch15, [(27, 8.956854), (24.058651, 8.956854), (24.058651, 4.991269), (27, 4.991269)])  # lines 0-3
sketch15.addConstraint([
    Sketcher.Constraint("Horizontal", 0),
    Sketcher.Constraint("Vertical", 1),
    Sketcher.Constraint("Horizontal", 2),
    Sketcher.Constraint("Vertical", 3),
    Sketcher.Constraint("DistanceX", -1, 1, 2, 2, 27.0),
    Sketcher.Constraint("DistanceX", 0, 2, 0, 1, 2.941349),
    Sketcher.Constraint("DistanceY", 1, 2, 1, 1, 3.965585),
    Sketcher.Constraint("DistanceY", -1, 1, 1, 2, 4.991269),
])
pad9 = doc.addObject("PartDesign::Pad", "Pad008")
body7.addObject(pad9)
pad9.Profile = sketch15
pad9.Length = 6.8
pad9.Reversed = True
doc.recompute()

body8 = doc.addObject("PartDesign::Body", "Body007")
body8.BaseFeature = body7
boolean5 = doc.addObject("PartDesign::Boolean", "Boolean004")
body.addObject(boolean5)
boolean5.Type = "Cut"
boolean5.addObjects([body8])
doc.recompute()

fillet = doc.addObject("PartDesign::Fillet", "Fillet")
body.addObject(fillet)
fillet.Base = (boolean5, edges_at(boolean5, [
    (23.275, -5.996, 4.25),
    (24.059, 7.457, 4.25),
    (9, -7.043, 3.25),
    (5.657, 7.457, 3.25),
    (15.25, -7.043, 0),
    (16.328, 7.457, 0),
]))
fillet.Radius = 1
doc.recompute()

boolean6 = doc.addObject("PartDesign::Boolean", "Boolean005")
body2.addObject(boolean6)
boolean6.Type = "Cut"
boolean6.addObjects([body7])
doc.recompute()

fillet2 = doc.addObject("PartDesign::Fillet", "Fillet001")
body2.addObject(fillet2)
fillet2.Base = (boolean6, edges_at(boolean6, [(14.858, 8.957, 6.5), (15.25, -8.543, 6.5)]))
fillet2.Radius = 1.5
body.Visibility = False

doc.recompute()
